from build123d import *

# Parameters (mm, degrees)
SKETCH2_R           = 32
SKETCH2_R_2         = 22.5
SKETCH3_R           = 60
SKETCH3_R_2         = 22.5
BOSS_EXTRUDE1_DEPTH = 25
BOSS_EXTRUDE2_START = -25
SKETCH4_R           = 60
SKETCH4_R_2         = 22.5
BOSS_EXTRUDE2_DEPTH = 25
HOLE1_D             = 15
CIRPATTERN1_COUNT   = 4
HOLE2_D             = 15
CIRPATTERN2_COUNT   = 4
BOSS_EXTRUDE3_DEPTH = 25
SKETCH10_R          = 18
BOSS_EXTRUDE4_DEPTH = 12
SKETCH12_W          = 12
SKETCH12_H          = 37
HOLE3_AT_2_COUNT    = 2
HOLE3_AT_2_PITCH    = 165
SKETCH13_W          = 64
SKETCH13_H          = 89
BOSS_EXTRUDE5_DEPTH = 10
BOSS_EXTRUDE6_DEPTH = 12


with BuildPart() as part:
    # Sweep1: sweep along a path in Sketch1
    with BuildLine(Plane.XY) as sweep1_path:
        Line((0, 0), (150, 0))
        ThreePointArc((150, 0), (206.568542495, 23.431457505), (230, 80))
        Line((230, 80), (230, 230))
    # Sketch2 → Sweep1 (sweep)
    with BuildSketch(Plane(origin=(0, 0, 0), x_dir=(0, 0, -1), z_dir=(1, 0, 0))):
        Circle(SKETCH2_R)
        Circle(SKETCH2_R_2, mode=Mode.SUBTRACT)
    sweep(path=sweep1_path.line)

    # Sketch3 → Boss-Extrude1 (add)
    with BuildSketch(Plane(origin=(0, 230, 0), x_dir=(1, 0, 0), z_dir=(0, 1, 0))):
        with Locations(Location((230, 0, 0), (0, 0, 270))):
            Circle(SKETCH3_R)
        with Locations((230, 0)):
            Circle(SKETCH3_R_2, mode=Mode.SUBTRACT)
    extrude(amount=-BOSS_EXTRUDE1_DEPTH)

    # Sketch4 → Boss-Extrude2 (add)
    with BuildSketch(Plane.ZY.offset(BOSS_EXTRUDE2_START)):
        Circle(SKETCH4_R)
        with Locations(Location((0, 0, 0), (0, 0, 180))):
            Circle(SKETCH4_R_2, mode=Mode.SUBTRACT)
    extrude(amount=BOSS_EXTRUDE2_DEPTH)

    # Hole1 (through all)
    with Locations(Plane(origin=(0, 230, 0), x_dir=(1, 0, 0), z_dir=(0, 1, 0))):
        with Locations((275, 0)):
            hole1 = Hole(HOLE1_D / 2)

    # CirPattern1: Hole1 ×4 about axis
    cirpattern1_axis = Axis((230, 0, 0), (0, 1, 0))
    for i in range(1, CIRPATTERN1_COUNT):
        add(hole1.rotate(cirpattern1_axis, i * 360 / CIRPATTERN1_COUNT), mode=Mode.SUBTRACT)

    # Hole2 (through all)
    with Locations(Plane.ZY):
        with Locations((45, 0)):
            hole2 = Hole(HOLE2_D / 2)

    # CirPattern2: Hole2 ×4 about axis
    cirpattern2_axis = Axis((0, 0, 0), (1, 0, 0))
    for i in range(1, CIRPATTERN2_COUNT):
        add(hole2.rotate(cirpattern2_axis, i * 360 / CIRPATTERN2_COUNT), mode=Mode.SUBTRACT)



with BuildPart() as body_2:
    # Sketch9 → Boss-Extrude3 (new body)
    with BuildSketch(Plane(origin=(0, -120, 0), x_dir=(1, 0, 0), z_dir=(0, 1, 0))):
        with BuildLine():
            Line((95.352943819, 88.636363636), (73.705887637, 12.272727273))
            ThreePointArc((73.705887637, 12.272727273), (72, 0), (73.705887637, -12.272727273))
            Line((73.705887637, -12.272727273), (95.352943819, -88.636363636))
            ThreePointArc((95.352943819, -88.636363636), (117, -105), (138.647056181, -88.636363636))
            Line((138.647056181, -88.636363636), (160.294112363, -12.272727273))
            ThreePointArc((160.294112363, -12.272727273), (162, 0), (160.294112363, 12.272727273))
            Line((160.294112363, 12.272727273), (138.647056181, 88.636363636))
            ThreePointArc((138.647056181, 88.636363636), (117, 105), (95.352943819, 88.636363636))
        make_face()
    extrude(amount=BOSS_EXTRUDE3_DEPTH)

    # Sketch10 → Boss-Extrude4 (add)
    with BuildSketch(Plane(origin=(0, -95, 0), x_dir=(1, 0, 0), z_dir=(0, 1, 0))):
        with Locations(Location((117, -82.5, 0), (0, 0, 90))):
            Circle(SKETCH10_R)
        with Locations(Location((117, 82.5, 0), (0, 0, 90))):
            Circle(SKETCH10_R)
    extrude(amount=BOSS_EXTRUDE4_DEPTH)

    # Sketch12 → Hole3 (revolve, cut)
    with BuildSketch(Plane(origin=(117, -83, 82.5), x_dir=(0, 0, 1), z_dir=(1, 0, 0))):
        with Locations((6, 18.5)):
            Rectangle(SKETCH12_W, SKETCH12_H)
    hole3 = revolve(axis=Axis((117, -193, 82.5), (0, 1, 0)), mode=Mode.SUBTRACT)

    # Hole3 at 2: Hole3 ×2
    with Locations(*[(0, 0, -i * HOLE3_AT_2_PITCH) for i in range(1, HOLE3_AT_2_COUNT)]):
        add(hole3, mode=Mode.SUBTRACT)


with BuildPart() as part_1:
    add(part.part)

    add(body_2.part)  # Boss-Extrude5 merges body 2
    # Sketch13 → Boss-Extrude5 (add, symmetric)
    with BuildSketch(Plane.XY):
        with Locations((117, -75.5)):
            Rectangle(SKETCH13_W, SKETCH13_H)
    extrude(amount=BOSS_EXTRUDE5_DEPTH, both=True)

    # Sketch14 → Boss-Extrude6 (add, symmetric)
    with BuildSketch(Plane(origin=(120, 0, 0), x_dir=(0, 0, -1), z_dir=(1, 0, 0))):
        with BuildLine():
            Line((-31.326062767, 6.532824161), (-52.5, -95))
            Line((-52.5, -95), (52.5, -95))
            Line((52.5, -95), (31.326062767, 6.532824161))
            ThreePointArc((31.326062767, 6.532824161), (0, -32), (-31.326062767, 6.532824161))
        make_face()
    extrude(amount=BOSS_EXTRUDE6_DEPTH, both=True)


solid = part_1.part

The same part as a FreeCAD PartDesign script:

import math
import FreeCAD as App
import Part
import Sketcher
Q = App.Units.Quantity


def add_polygon(sketch, points):
    """Adds a closed chain of lines whose ends are joined by coincident constraints."""
    first, n = sketch.GeometryCount, len(points)
    for a, b in zip(points, points[1:] + points[:1]):
        sketch.addGeometry(Part.LineSegment(App.Vector(*a, 0), App.Vector(*b, 0)), False)
    for i in range(n):
        sketch.addConstraint(Sketcher.Constraint("Coincident", first + i, 2, first + (i + 1) % n, 1))

doc = App.newDocument("Part")
body = doc.addObject("PartDesign::Body", "Body")

# Sketch on YZ plane
sketch1 = body.newObject("Sketcher::SketchObject", "Sketch")
sketch1.AttachmentSupport = (doc.getObject("YZ_Plane"), [""])
sketch1.MapMode = "FlatFace"
sketch1.addGeometry([
    Part.Circle(App.Vector(0, 0, 0), App.Vector(0, 0, 1), 32),
    Part.Circle(App.Vector(0, 0, 0), App.Vector(0, 0, 1), 22),
], False)
sketch1.addConstraint([
    Sketcher.Constraint("Coincident", 0, 3, -1, 1),
    Sketcher.Constraint("Coincident", 1, 3, -1, 1),
    Sketcher.Constraint("Diameter", 0, Q("64 mm")),
    Sketcher.Constraint("Diameter", 1, Q("45 mm")),
])

# Sketch on XY plane
sketch2 = body.newObject("Sketcher::SketchObject", "Sketch001")
sketch2.AttachmentSupport = (doc.getObject("XY_Plane"), [""])
sketch2.MapMode = "FlatFace"
sketch2.addGeometry([
    Part.LineSegment(App.Vector(0, 0, 0), App.Vector(150, 0, 0)),
    Part.ArcOfCircle(Part.Circle(App.Vector(150, 80, 0), App.Vector(0, 0, 1), 80), math.radians(-90), math.radians(0)),
    Part.LineSegment(App.Vector(230, 80, 0), App.Vector(230, 230, 0)),
], False)
sketch2.addConstraint([
    Sketcher.Constraint("Tangent", 0, 2, 1, 1),
    Sketcher.Constraint("Tangent", 1, 2, 2, 1),
    Sketcher.Constraint("Horizontal", 0),
    Sketcher.Constraint("Vertical", 2),
    Sketcher.Constraint("Coincident", 0, 1, -1, 1),
    Sketcher.Constraint("Equal", 0, 2),
    Sketcher.Constraint("Radius", 1, Q("80 mm")),
    Sketcher.Constraint("DistanceX", 0, 1, 0, 2, Q("150 mm")),
])
doc.recompute()

additivepipe = body.newObject("PartDesign::AdditivePipe", "AdditivePipe")
additivepipe.Profile = sketch1
additivepipe.Spine = (sketch2, ["Edge1", "Edge2", "Edge3"])

# Sketch on XZ plane
sketch3 = body.newObject("Sketcher::SketchObject", "Sketch002")
sketch3.AttachmentSupport = (doc.getObject("XZ_Plane"), [""])
sketch3.MapMode = "FlatFace"
sketch3.AttachmentOffset = App.Placement(App.Vector(0, 0, -230), App.Rotation())
sketch3.addGeometry([
    Part.Circle(App.Vector(230, 0, 0), App.Vector(0, 0, 1), 60),
    Part.Circle(App.Vector(230, 0, 0), App.Vector(0, 0, 1), 22),
], False)
sketch3.addConstraint([
    Sketcher.Constraint("Coincident", 1, 3, 0, 3),
    Sketcher.Constraint("PointOnObject", 0, 3, -1),
    Sketcher.Constraint("Diameter", 0, Q("120 mm")),
    Sketcher.Constraint("Diameter", 1, Q("45 mm")),
    Sketcher.Constraint("DistanceX", -1, 1, 0, 3, Q("230 mm")),
])
pad1 = body.newObject("PartDesign::Pad", "Pad")
pad1.Profile = sketch3
pad1.Length = 25

# Sketch on YZ plane
sketch4 = body.newObject("Sketcher::SketchObject", "Sketch003")
sketch4.AttachmentSupport = (doc.getObject("YZ_Plane"), [""])
sketch4.MapMode = "FlatFace"
sketch4.AttachmentOffset = App.Placement(App.Vector(0, 0, 25), App.Rotation())
sketch4.addGeometry([
    Part.Circle(App.Vector(0, 0, 0), App.Vector(0, 0, 1), 60),
    Part.Circle(App.Vector(0, 0, 0), App.Vector(0, 0, 1), 22),
], False)
sketch4.addConstraint([
    Sketcher.Constraint("Coincident", 0, 3, -1, 1),
    Sketcher.Constraint("Coincident", 1, 3, -1, 1),
    Sketcher.Constraint("Diameter", 0, Q("120 mm")),
    Sketcher.Constraint("Diameter", 1, Q("45 mm")),
])
pad2 = body.newObject("PartDesign::Pad", "Pad001")
pad2.Profile = sketch4
pad2.Length = 25
pad2.Reversed = True

# Sketch on XZ plane
sketch5 = body.newObject("Sketcher::SketchObject", "Sketch004")
sketch5.AttachmentSupport = (doc.getObject("XZ_Plane"), [""])
sketch5.MapMode = "FlatFace"
sketch5.AttachmentOffset = App.Placement(App.Vector(0, 0, -230), App.Rotation())
sketch5.addGeometry(Part.Circle(App.Vector(275, 0, 0), App.Vector(0, 0, 1), 8), False)
sketch5.addConstraint([
    Sketcher.Constraint("PointOnObject", 0, 3, -1),
    Sketcher.Constraint("Diameter", 0, Q("15 mm")),
    Sketcher.Constraint("DistanceX", -1, 1, 0, 3, Q("275 mm")),
])
doc.recompute()
hole = body.newObject("PartDesign::Hole", "Hole")
hole.Profile = sketch5
hole.ThreadType = "None"
hole.Diameter = 15
hole.DepthType = "ThroughAll"
hole.Reversed = True
doc.recompute()

datumline = body.newObject("PartDesign::Line", "DatumLine")
datumline.Placement = App.Placement(App.Vector(230, 0, 0), App.Rotation(App.Vector(0, 0, 1), App.Vector(0, 1, 0)))
polarpattern = body.newObject("PartDesign::PolarPattern", "PolarPattern")
polarpattern.Originals = [hole]
polarpattern.Axis = (datumline, [""])
polarpattern.Angle = 360
polarpattern.Occurrences = 4
body.Tip = polarpattern

# Sketch on YZ plane
sketch6 = body.newObject("Sketcher::SketchObject", "Sketch005")
sketch6.AttachmentSupport = (doc.getObject("YZ_Plane"), [""])
sketch6.MapMode = "FlatFace"
sketch6.addGeometry(Part.Circle(App.Vector(0, 45, 0), App.Vector(0, 0, 1), 8), False)
sketch6.addConstraint([
    Sketcher.Constraint("PointOnObject", 0, 3, -2),
    Sketcher.Constraint("Diameter", 0, Q("15 mm")),
    Sketcher.Constraint("DistanceY", -1, 1, 0, 3, Q("45 mm")),
])
doc.recompute()
hole2 = body.newObject("PartDesign::Hole", "Hole001")
hole2.Profile = sketch6
hole2.ThreadType = "None"
hole2.Diameter = 15
hole2.DepthType = "ThroughAll"
hole2.Reversed = True
doc.recompute()

polarpattern2 = body.newObject("PartDesign::PolarPattern", "PolarPattern001")
polarpattern2.Originals = [hole2]
polarpattern2.Axis = (doc.getObject("X_Axis"), [""])
polarpattern2.Angle = 360
polarpattern2.Occurrences = 4
body.Tip = polarpattern2
body2 = doc.addObject("PartDesign::Body", "Body001")

# Sketch on XZ plane
sketch7 = body2.newObject("Sketcher::SketchObject", "Sketch006")
sketch7.AttachmentSupport = (doc.getObject("XZ_Plane001"), [""])
sketch7.MapMode = "FlatFace"
sketch7.AttachmentOffset = App.Placement(App.Vector(0, 0, 120), App.Rotation())
sketch7.addGeometry([
    Part.LineSegment(App.Vector(95, -89, 0), App.Vector(74, -12, 0)),  # 0
    Part.ArcOfCircle(Part.Circle(App.Vector(117, 0, 0), App.Vector(0, 0, 1), 45), math.radians(164), math.radians(196)),  # 1
    Part.LineSegment(App.Vector(74, 12, 0), App.Vector(95, 89, 0)),  # 2
    Part.ArcOfCircle(Part.Circle(App.Vector(117, 83, 0), App.Vector(0, 0, 1), 22), math.radians(16), math.radians(164)),  # 3
    Part.LineSegment(App.Vector(139, 89, 0), App.Vector(160, 12, 0)),  # 4
    Part.ArcOfCircle(Part.Circle(App.Vector(117, 0, 0), App.Vector(0, 0, 1), 45), math.radians(-16), math.radians(16)),  # 5
    Part.LineSegment(App.Vector(160, -12, 0), App.Vector(139, -89, 0)),  # 6
    Part.ArcOfCircle(Part.Circle(App.Vector(117, -83, 0), App.Vector(0, 0, 1), 22), math.radians(-164), math.radians(-16)),  # 7
], False)
sketch7.addConstraint([
    Sketcher.Constraint("Tangent", 0, 2, 1, 2),
    Sketcher.Constraint("Tangent", 1, 1, 2, 1),
    Sketcher.Constraint("Tangent", 2, 2, 3, 2),
    Sketcher.Constraint("Tangent", 3, 1, 4, 1),
    Sketcher.Constraint("Tangent", 4, 2, 5, 2),
    Sketcher.Constraint("Tangent", 5, 1, 6, 1),
    Sketcher.Constraint("Tangent", 6, 2, 7, 2),
    Sketcher.Constraint("Tangent", 7, 1, 0, 1),
    Sketcher.Constraint("Coincident", 5, 3, 1, 3),
    Sketcher.Constraint("Equal", 1, 5),
    Sketcher.Constraint("Equal", 3, 7),
    Sketcher.Constraint("Symmetric", 3, 3, 7, 3, -1),
    Sketcher.Constraint("PointOnObject", 1, 3, -1),
    Sketcher.Constraint("Parallel", 0, 4),
    Sketcher.Constraint("Radius", 1, Q("45 mm")),
    Sketcher.Constraint("Radius", 3, Q("22.5 mm")),
    Sketcher.Constraint("DistanceX", -1, 1, 1, 3, Q("117 mm")),
    Sketcher.Constraint("DistanceY", 7, 3, 3, 3, Q("165 mm")),
])
pad3 = body2.newObject("PartDesign::Pad", "Pad002")
pad3.Profile = sketch7
pad3.Length = 25
pad3.Reversed = True

# Sketch on XZ plane
sketch8 = body2.newObject("Sketcher::SketchObject", "Sketch007")
sketch8.AttachmentSupport = (doc.getObject("XZ_Plane001"), [""])
sketch8.MapMode = "FlatFace"
sketch8.AttachmentOffset = App.Placement(App.Vector(0, 0, 95), App.Rotation())
sketch8.addGeometry([
    Part.Circle(App.Vector(117, 82, 0), App.Vector(0, 0, 1), 18),
    Part.Circle(App.Vector(117, -82, 0), App.Vector(0, 0, 1), 18),
], False)
sketch8.addConstraint([
    Sketcher.Constraint("Equal", 0, 1),
    Sketcher.Constraint("Symmetric", 0, 3, 1, 3, -1),
    Sketcher.Constraint("Diameter", 0, Q("36 mm")),
    Sketcher.Constraint("DistanceX", -1, 1, 0, 3, Q("117 mm")),
    Sketcher.Constraint("DistanceY", 1, 3, 0, 3, Q("165 mm")),
])
pad4 = body2.newObject("PartDesign::Pad", "Pad003")
pad4.Profile = sketch8
pad4.Length = 12
pad4.Reversed = True

# Sketch on YZ plane
sketch9 = body2.newObject("Sketcher::SketchObject", "Sketch008")
sketch9.AttachmentSupport = (doc.getObject("YZ_Plane001"), [""])
sketch9.MapMode = "FlatFace"
sketch9.AttachmentOffset = App.Placement(App.Vector(0, 0, 117), App.Rotation())
add_polygon(sketch9, [(-120, 82), (-83, 82), (-83, 94), (-120, 94)])  # lines 0-3
sketch9.addGeometry(Part.LineSegment(App.Vector(-120, 82, 0), App.Vector(-83, 82, 0)), True)  # axis
sketch9.addConstraint([
    Sketcher.Constraint("Horizontal", 0),
    Sketcher.Constraint("Vertical", 1),
    Sketcher.Constraint("Horizontal", 2),
    Sketcher.Constraint("Vertical", 3),
    Sketcher.Constraint("Horizontal", 4),
    Sketcher.Constraint("Coincident", 4, 1, 3, 2),
    Sketcher.Constraint("Vertical", 1, 2, 4, 2),
    Sketcher.Constraint("DistanceX", 0, 1, 0, 2, Q("37 mm")),
    Sketcher.Constraint("DistanceY", 1, 1, 1, 2, Q("12 mm")),
    Sketcher.Constraint("DistanceX", 0, 2, -1, 1, Q("83 mm")),
    Sketcher.Constraint("DistanceY", -1, 1, 0, 2, Q("82.5 mm")),
])
groove = body2.newObject("PartDesign::Groove", "Groove")
groove.Profile = sketch9
groove.ReferenceAxis = (sketch9, ["Axis0"])
groove.Angle = 360
doc.recompute()

linearpattern = body2.newObject("PartDesign::LinearPattern", "LinearPattern")
linearpattern.Originals = [groove]
linearpattern.Direction = (doc.getObject("Z_Axis001"), [""])
linearpattern.Mode = "offset"
linearpattern.Offset = 165
linearpattern.Occurrences = 2
linearpattern.Reversed = True
body2.Tip = linearpattern
body.AllowCompound = True
doc.recompute()

boolean = body.newObject("PartDesign::Boolean", "Boolean")
boolean.Type = "Fuse"
boolean.addObjects([body2])

# Sketch on XY plane
sketch10 = body.newObject("Sketcher::SketchObject", "Sketch009")
sketch10.AttachmentSupport = (doc.getObject("XY_Plane"), [""])
sketch10.MapMode = "FlatFace"
add_polygon(sketch10, [(85, -31), (85, -120), (149, -120), (149, -31)])  # lines 0-3
sketch10.addConstraint([
    Sketcher.Constraint("Vertical", 0),
    Sketcher.Constraint("Horizontal", 1),
    Sketcher.Constraint("Vertical", 2),
    Sketcher.Constraint("Horizontal", 3),
    Sketcher.Constraint("DistanceX", 1, 1, 1, 2, Q("64 mm")),
    Sketcher.Constraint("DistanceY", 0, 2, 0, 1, Q("89 mm")),
    Sketcher.Constraint("DistanceX", -1, 1, 0, 2, Q("85 mm")),
    Sketcher.Constraint("DistanceY", 0, 2, -1, 1, Q("120 mm")),
])
pad5 = body.newObject("PartDesign::Pad", "Pad004")
pad5.Profile = sketch10
pad5.Length = 20
pad5.Midplane = True

# Sketch on YZ plane
sketch11 = body.newObject("Sketcher::SketchObject", "Sketch010")
sketch11.AttachmentSupport = (doc.getObject("YZ_Plane"), [""])
sketch11.MapMode = "FlatFace"
sketch11.AttachmentOffset = App.Placement(App.Vector(0, 0, 120), App.Rotation())
sketch11.addGeometry([
    Part.LineSegment(App.Vector(7, 31, 0), App.Vector(-95, 52, 0)),
    Part.LineSegment(App.Vector(-95, 52, 0), App.Vector(-95, -52, 0)),
    Part.LineSegment(App.Vector(-95, -52, 0), App.Vector(7, -31, 0)),
    Part.ArcOfCircle(Part.Circle(App.Vector(0, 0, 0), App.Vector(0, 0, 1), 32), math.radians(78), math.radians(282)),
], False)
sketch11.addConstraint([
    Sketcher.Constraint("Coincident", 0, 2, 1, 1),
    Sketcher.Constraint("Coincident", 1, 2, 2, 1),
    Sketcher.Constraint("Tangent", 2, 2, 3, 2),
    Sketcher.Constraint("Tangent", 3, 1, 0, 1),
    Sketcher.Constraint("Vertical", 1),
    Sketcher.Constraint("Coincident", 3, 3, -1, 1),
    Sketcher.Constraint("Vertical", 2, 2, 3, 1),
    Sketcher.Constraint("Radius", 3, Q("32 mm")),
    Sketcher.Constraint("DistanceY", 1, 2, 1, 1, Q("105 mm")),
    Sketcher.Constraint("DistanceX", 0, 2, -1, 1, Q("95 mm")),
])
pad6 = body.newObject("PartDesign::Pad", "Pad005")
pad6.Profile = sketch11
pad6.Length = 24
pad6.Midplane = True

doc.recompute()
